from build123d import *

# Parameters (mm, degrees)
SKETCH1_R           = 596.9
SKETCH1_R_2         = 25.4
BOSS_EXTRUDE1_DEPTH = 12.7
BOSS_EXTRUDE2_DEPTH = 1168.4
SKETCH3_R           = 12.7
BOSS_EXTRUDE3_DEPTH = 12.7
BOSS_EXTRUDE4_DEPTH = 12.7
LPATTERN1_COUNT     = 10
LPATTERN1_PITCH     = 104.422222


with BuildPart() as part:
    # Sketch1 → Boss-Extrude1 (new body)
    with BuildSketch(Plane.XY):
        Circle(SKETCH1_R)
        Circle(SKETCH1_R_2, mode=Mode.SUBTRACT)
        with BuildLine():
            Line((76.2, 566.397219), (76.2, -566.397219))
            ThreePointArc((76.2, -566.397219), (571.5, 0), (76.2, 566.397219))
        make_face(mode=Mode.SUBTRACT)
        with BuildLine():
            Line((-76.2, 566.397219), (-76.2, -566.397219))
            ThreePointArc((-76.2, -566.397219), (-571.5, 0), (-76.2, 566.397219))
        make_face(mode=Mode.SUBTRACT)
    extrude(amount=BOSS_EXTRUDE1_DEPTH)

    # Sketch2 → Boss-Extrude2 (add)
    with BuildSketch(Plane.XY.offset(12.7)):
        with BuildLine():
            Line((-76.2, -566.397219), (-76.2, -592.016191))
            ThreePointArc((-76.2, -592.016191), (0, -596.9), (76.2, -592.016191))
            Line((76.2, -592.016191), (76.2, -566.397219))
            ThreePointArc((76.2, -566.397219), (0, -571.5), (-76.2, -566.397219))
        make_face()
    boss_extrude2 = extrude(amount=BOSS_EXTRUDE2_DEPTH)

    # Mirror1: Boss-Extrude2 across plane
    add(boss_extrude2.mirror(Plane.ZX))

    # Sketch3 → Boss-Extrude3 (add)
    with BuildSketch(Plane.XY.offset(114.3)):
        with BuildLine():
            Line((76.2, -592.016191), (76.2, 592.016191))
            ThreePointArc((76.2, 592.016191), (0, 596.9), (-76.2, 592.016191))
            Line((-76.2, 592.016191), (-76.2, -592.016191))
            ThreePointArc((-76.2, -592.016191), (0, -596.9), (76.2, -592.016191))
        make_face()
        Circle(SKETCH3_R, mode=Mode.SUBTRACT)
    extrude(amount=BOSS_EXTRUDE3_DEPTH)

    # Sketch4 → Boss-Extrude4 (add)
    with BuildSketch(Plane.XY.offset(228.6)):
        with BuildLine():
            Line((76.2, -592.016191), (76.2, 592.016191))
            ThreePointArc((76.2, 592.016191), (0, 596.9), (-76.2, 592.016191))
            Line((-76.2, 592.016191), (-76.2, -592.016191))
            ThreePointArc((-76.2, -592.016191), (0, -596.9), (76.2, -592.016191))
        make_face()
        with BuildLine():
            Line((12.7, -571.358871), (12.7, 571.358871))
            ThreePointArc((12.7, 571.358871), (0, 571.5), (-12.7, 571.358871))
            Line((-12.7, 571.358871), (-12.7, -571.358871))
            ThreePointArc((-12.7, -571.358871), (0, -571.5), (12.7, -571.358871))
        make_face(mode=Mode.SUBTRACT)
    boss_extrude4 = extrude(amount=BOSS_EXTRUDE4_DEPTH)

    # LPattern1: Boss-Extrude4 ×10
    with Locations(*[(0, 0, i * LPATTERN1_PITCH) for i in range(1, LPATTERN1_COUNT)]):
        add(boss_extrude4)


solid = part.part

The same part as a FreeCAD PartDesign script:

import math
import FreeCAD as App
import Part
import Sketcher
from FreeCAD import Vector
Q = App.Units.Quantity

doc = App.newDocument("Part")
body = doc.addObject("PartDesign::Body", "Body")

# Sketch on XY plane
sketch1 = doc.addObject("Sketcher::SketchObject", "Sketch")
body.addObject(sketch1)
sketch1.AttachmentSupport = (doc.XY_Plane, [""])
sketch1.MapMode = "FlatFace"
sketch1.addGeometry([
    Part.Circle(Vector(0, 0, 0), Vector(0, 0, 1), 597),  # 0
    Part.ArcOfCircle(Part.Circle(Vector(0, 0, 0), Vector(0, 0, 1), 571), math.radians(98), math.radians(262)),  # 1
    Part.LineSegment(Vector(-76, 566, 0), Vector(-76, -566, 0)),  # 2
    Part.Circle(Vector(0, 0, 0), Vector(0, 0, 1), 25),  # 3
    Part.LineSegment(Vector(76, -566, 0), Vector(76, 566, 0)),  # 4
    Part.ArcOfCircle(Part.Circle(Vector(0, 0, 0), Vector(0, 0, 1), 571), math.radians(-82), math.radians(82)),  # 5
], False)
sketch1.addConstraint([
    Sketcher.Constraint("Coincident", 1, 1, 2, 1),
    Sketcher.Constraint("Coincident", 2, 2, 1, 2),
    Sketcher.Constraint("Coincident", 4, 1, 5, 1),
    Sketcher.Constraint("Coincident", 5, 2, 4, 2),
    Sketcher.Constraint("Vertical", 2),
    Sketcher.Constraint("Vertical", 4),
    Sketcher.Constraint("Coincident", 0, 3, -1, 1),
    Sketcher.Constraint("Coincident", 1, 3, -1, 1),
    Sketcher.Constraint("Coincident", 3, 3, -1, 1),
    Sketcher.Constraint("Coincident", 5, 3, -1, 1),
    Sketcher.Constraint("Equal", 1, 5),
    Sketcher.Constraint("Horizontal", 2, 2, 4, 1),
    Sketcher.Constraint("Diameter", 0, Q("47 in")),
    Sketcher.Constraint("Diameter", 3, Q("2 in")),
    Sketcher.Constraint("Radius", 1, Q("22.5 in")),
    Sketcher.Constraint("DistanceX", 2, 2, -1, 1, Q("3 in")),
])
pad1 = doc.addObject("PartDesign::Pad", "Pad")
body.addObject(pad1)
pad1.Profile = sketch1
pad1.Length = Q("0.5 in")

# Sketch on XY plane
sketch2 = doc.addObject("Sketcher::SketchObject", "Sketch001")
body.addObject(sketch2)
sketch2.AttachmentSupport = (doc.XY_Plane, [""])
sketch2.MapMode = "FlatFace"
sketch2.AttachmentOffset = App.Placement(Vector(0, 0, 0.5 * 25.4), App.Rotation())
sketch2.addGeometry([
    Part.LineSegment(Vector(-76, -566, 0), Vector(-76, -592, 0)),
    Part.ArcOfCircle(Part.Circle(Vector(0, 0, 0), Vector(0, 0, 1), 597), math.radians(-97.33), math.radians(-82.67)),
    Part.LineSegment(Vector(76, -592, 0), Vector(76, -566, 0)),
    Part.ArcOfCircle(Part.Circle(Vector(0, 0, 0), Vector(0, 0, 1), 571), math.radians(-97.66), math.radians(-82.34)),
], False)
sketch2.addConstraint([
    Sketcher.Constraint("Coincident", 0, 2, 1, 1),
    Sketcher.Constraint("Coincident", 1, 2, 2, 1),
    Sketcher.Constraint("Coincident", 2, 2, 3, 2),
    Sketcher.Constraint("Coincident", 3, 1, 0, 1),
    Sketcher.Constraint("Vertical", 0),
    Sketcher.Constraint("Vertical", 2),
    Sketcher.Constraint("PointOnObject", 1, 3, -2),
    Sketcher.Constraint("PointOnObject", 3, 3, -2),
    Sketcher.Constraint("Equal", 0, 2),
    Sketcher.Constraint("DistanceX", 0, 2, -1, 1, Q("3 in")),
    Sketcher.Constraint("Radius", 1, Q("596.900042 mm")),
    Sketcher.Constraint("Radius", 3, Q("571.49997 mm")),
    Sketcher.Constraint("DistanceY", 0, 2, 0, 1, Q("25.618972 mm")),
    Sketcher.Constraint("DistanceY", 0, 2, -1, 1, Q("592.016191 mm")),
])
pad2 = doc.addObject("PartDesign::Pad", "Pad001")
body.addObject(pad2)
pad2.Profile = sketch2
pad2.Length = Q("46 in")
doc.recompute()

mirrored = doc.addObject("PartDesign::Mirrored", "Mirrored")
body.addObject(mirrored)
mirrored.Originals = [pad2]
mirrored.MirrorPlane = (doc.XZ_Plane, [""])
body.Tip = mirrored

# Sketch on XY plane
sketch3 = doc.addObject("Sketcher::SketchObject", "Sketch002")
body.addObject(sketch3)
sketch3.AttachmentSupport = (doc.XY_Plane, [""])
sketch3.MapMode = "FlatFace"
sketch3.AttachmentOffset = App.Placement(Vector(0, 0, 4.5 * 25.4), App.Rotation())
sketch3.addGeometry([
    Part.LineSegment(Vector(76.2, -592.016191, 0), Vector(76.2, 592.016191, 0)),  # 0
    Part.ArcOfCircle(Part.Circle(Vector(0, -0.000042, 0), Vector(0, 0, 1), 596.900042), math.radians(82.665632), math.radians(97.334368)),  # 1
    Part.LineSegment(Vector(-76.2, 592.016191, 0), Vector(-76.2, -592.016191, 0)),  # 2
    Part.ArcOfCircle(Part.Circle(Vector(0, 0.000042, 0), Vector(0, 0, 1), 596.900042), math.radians(-97.334368), math.radians(-82.665632)),  # 3
    Part.Circle(Vector(0, 0, 0), Vector(0, 0, 1), 12.7),  # 4
], False)
sketch3.addConstraint([
    Sketcher.Constraint("Coincident", 0, 2, 1, 1),
    Sketcher.Constraint("Coincident", 1, 2, 2, 1),
    Sketcher.Constraint("Coincident", 2, 2, 3, 1),
    Sketcher.Constraint("Coincident", 3, 2, 0, 1),
    Sketcher.Constraint("Vertical", 0),
    Sketcher.Constraint("Vertical", 2),
    Sketcher.Constraint("Coincident", 4, 3, -1, 1),
    Sketcher.Constraint("Equal", 1, 3),
    Sketcher.Constraint("Symmetric", 1, 3, 3, 3, -1, 1),
    Sketcher.Constraint("PointOnObject", 1, 3, -2),
    Sketcher.Constraint("Equal", 0, 2),
    Sketcher.Constraint("Diameter", 4, Q("1 in")),
    Sketcher.Constraint("DistanceX", -1, 1, 0, 2, Q("3 in")),
    Sketcher.Constraint("Radius", 1, Q("596.900042 mm")),
    Sketcher.Constraint("DistanceY", 0, 1, 0, 2, Q("1184.032382 mm")),
])
pad3 = doc.addObject("PartDesign::Pad", "Pad002")
body.addObject(pad3)
pad3.Profile = sketch3
pad3.Length = Q("0.5 in")

# Sketch on XY plane
sketch4 = doc.addObject("Sketcher::SketchObject", "Sketch003")
body.addObject(sketch4)
sketch4.AttachmentSupport = (doc.XY_Plane, [""])
sketch4.MapMode = "FlatFace"
sketch4.AttachmentOffset = App.Placement(Vector(0, 0, 9 * 25.4), App.Rotation())
sketch4.addGeometry([
    Part.LineSegment(Vector(76.2, -592.016191, 0), Vector(76.2, 592.016191, 0)),  # 0
    Part.ArcOfCircle(Part.Circle(Vector(0, -0.000042, 0), Vector(0, 0, 1), 596.900042), math.radians(82.665632), math.radians(97.334368)),  # 1
    Part.LineSegment(Vector(-76.2, 592.016191, 0), Vector(-76.2, -592.016191, 0)),  # 2
    Part.ArcOfCircle(Part.Circle(Vector(0, 0.000042, 0), Vector(0, 0, 1), 596.900042), math.radians(-97.334368), math.radians(-82.665632)),  # 3
    Part.LineSegment(Vector(12.7, 571.358871, 0), Vector(12.7, -571.358871, 0)),  # 4
    Part.ArcOfCircle(Part.Circle(Vector(0, -0.001876, 0), Vector(0, 0, 1), 571.498124), math.radians(-91.273349), math.radians(-88.726651)),  # 5
    Part.LineSegment(Vector(-12.7, -571.358871, 0), Vector(-12.7, 571.358871, 0)),  # 6
    Part.ArcOfCircle(Part.Circle(Vector(0, 0.001876, 0), Vector(0, 0, 1), 571.498124), math.radians(88.726651), math.radians(91.273349)),  # 7
], False)
sketch4.addConstraint([
    Sketcher.Constraint("Coincident", 0, 2, 1, 1),
    Sketcher.Constraint("Coincident", 1, 2, 2, 1),
    Sketcher.Constraint("Coincident", 2, 2, 3, 1),
    Sketcher.Constraint("Coincident", 3, 2, 0, 1),
    Sketcher.Constraint("Coincident", 4, 2, 5, 2),
    Sketcher.Constraint("Coincident", 5, 1, 6, 1),
    Sketcher.Constraint("Coincident", 6, 2, 7, 2),
    Sketcher.Constraint("Coincident", 7, 1, 4, 1),
    Sketcher.Constraint("Vertical", 0),
    Sketcher.Constraint("Vertical", 2),
    Sketcher.Constraint("Vertical", 4),
    Sketcher.Constraint("Vertical", 6),
    Sketcher.Constraint("Equal", 1, 3),
    Sketcher.Constraint("Equal", 5, 7),
    Sketcher.Constraint("Symmetric", 1, 3, 3, 3, -1, 1),
    Sketcher.Constraint("Symmetric", 5, 3, 7, 3, -1, 1),
    Sketcher.Constraint("PointOnObject", 1, 3, -2),
    Sketcher.Constraint("PointOnObject", 5, 3, -2),
    Sketcher.Constraint("Equal", 0, 2),
    Sketcher.Constraint("Equal", 4, 6),
    Sketcher.Constraint("DistanceX", -1, 1, 0, 2, Q("3 in")),
    Sketcher.Constraint("DistanceX", -1, 1, 4, 2, Q("0.5 in")),
    Sketcher.Constraint("Radius", 1, Q("596.900042 mm")),
    Sketcher.Constraint("Radius", 5, Q("571.498124 mm")),
    Sketcher.Constraint("DistanceY", 0, 1, 0, 2, Q("1184.032382 mm")),
    Sketcher.Constraint("DistanceY", 4, 2, 4, 1, Q("1142.717742 mm")),
])
pad4 = doc.addObject("PartDesign::Pad", "Pad003")
body.addObject(pad4)
pad4.Profile = sketch4
pad4.Length = Q("0.5 in")
doc.recompute()

linearpattern = doc.addObject("PartDesign::LinearPattern", "LinearPattern")
body.addObject(linearpattern)
linearpattern.Originals = [pad4]
linearpattern.Direction = (doc.Z_Axis, [""])
linearpattern.Mode = "offset"
linearpattern.Offset = 104.422222
linearpattern.Occurrences = 10
body.Tip = linearpattern

doc.recompute()
